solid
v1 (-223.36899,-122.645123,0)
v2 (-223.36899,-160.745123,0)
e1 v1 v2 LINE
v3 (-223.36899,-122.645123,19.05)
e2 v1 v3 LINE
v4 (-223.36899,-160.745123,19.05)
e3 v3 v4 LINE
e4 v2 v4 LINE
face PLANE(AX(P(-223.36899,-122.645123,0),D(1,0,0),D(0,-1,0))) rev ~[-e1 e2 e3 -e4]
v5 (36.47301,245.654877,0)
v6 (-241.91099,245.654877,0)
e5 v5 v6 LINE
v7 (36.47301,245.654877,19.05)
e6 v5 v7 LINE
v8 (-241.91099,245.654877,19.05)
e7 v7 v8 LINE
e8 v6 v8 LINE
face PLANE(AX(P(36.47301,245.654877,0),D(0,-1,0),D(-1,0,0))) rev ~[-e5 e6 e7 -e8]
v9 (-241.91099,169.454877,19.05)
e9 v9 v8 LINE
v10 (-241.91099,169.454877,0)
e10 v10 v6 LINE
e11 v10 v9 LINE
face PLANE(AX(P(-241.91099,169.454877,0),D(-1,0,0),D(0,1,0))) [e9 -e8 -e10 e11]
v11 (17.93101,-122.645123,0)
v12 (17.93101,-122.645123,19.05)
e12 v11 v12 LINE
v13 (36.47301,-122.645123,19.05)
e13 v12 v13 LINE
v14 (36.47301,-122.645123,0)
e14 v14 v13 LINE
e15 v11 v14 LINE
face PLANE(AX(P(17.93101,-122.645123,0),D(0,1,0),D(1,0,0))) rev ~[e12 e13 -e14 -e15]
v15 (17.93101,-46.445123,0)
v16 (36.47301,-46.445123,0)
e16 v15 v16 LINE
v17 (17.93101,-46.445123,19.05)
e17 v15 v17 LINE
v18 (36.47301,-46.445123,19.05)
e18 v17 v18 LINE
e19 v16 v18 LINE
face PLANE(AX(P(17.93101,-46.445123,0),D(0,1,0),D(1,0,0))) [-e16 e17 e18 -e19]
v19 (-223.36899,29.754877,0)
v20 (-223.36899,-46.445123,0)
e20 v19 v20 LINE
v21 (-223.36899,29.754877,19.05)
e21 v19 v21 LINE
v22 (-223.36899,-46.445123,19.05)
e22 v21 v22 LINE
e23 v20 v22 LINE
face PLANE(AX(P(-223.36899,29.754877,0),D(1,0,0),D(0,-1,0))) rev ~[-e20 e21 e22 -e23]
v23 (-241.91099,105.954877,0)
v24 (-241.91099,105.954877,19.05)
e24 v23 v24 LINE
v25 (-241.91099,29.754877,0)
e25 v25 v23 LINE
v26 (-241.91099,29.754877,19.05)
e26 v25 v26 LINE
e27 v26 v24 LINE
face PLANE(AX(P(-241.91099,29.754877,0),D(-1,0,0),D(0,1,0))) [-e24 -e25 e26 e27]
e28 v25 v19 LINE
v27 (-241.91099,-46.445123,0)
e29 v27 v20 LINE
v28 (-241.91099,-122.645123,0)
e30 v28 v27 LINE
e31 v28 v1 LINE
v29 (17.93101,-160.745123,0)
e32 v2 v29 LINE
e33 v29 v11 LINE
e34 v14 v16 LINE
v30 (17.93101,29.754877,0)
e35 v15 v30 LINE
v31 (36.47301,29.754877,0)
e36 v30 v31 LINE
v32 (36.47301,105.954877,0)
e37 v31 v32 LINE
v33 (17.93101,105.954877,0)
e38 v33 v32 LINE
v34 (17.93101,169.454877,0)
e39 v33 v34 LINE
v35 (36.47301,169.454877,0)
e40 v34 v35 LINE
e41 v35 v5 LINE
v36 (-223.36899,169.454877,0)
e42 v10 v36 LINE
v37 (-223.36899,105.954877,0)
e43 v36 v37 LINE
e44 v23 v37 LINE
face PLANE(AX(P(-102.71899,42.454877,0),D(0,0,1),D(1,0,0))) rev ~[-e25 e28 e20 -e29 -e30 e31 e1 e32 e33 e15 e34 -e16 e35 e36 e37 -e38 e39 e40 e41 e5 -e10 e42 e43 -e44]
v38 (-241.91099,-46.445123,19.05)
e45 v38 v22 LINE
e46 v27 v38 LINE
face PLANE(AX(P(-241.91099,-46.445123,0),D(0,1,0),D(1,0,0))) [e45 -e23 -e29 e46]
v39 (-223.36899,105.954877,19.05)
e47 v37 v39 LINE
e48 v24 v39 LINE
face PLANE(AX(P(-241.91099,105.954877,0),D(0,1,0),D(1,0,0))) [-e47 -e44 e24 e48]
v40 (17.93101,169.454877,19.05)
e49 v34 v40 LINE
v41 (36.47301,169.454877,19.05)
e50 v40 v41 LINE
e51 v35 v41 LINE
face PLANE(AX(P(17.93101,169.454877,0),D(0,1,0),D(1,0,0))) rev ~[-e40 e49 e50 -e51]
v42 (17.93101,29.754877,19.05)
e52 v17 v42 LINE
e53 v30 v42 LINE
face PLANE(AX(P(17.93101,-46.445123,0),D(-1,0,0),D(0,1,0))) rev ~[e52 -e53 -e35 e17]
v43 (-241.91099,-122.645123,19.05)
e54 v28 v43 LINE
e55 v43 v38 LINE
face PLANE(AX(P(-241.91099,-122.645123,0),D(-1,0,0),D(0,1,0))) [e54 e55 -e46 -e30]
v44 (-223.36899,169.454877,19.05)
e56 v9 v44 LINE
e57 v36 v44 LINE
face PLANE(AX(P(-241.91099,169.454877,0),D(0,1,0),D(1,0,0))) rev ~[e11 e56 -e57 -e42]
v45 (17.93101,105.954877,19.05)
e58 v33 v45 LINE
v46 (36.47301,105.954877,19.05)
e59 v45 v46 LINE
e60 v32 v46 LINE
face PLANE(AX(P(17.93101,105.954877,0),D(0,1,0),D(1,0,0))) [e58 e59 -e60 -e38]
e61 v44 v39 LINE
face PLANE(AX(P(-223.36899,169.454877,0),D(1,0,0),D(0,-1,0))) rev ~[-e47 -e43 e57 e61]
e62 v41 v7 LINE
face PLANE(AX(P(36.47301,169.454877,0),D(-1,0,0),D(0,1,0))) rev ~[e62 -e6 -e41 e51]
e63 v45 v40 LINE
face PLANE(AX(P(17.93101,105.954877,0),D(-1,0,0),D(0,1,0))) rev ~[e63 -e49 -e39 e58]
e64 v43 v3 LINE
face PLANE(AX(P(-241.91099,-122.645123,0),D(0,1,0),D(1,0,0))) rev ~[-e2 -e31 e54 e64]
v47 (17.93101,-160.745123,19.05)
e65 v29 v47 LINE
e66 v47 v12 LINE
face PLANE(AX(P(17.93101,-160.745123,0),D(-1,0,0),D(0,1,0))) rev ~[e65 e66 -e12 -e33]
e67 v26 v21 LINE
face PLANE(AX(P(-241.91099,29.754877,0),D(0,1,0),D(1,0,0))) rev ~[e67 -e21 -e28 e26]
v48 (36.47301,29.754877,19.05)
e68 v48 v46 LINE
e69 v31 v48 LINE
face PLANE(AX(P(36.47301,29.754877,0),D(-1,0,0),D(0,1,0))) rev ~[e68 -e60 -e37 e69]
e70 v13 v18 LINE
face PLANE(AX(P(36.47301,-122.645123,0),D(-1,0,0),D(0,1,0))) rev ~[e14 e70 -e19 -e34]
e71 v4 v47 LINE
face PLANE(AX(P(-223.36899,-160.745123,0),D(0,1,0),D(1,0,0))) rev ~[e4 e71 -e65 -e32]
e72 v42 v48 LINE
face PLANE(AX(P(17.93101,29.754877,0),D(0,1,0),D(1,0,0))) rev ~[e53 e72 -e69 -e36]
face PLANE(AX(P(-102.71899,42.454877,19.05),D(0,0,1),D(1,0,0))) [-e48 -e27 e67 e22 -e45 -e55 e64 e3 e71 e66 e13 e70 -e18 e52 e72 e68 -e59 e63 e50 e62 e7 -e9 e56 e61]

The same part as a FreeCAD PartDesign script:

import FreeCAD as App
import Part
import Sketcher

V = App.Vector
Q = App.Units.Quantity


def add_polygon(sketch, points):
    """Adds a closed chain of lines whose ends are joined by coincident constraints."""
    first, n = sketch.GeometryCount, len(points)
    for a, b in zip(points, points[1:] + points[:1]):
        sketch.addGeometry(Part.LineSegment(App.Vector(*a, 0), App.Vector(*b, 0)), False)
    for i in range(n):
        sketch.addConstraint(Sketcher.Constraint("Coincident", first + i, 2, first + (i + 1) % n, 1))

doc = App.newDocument("Part")
params = doc.addObject("Spreadsheet::Sheet", "Params")
for row, (alias, value) in enumerate([
    ("sketch1_height", "3 in"),
    ("sketch1_width", "9.5 in"),
    ("sketch1_height2", "2.5 in"),
    ("sketch1_height3", "1.5 in"),
    ("sketch1_width2", "0.73 in"),
    ("pad1_length", "0.75 in"),
], start=1):
    params.set(f"A{row}", alias)
    params.set(f"B{row}", "=" + value)
    params.setAlias(f"B{row}", alias)

body = doc.addObject("PartDesign::Body", "Body")

# Sketch on XY plane
sketch1 = body.newObject("Sketcher::SketchObject", "Sketch")
sketch1.AttachmentSupport = (doc.getObject("XY_Plane"), [""])
sketch1.MapMode = "FlatFace"
add_polygon(sketch1, [(-223.36899, 169.454877), (-223.36899, 105.954877), (-241.91099, 105.954877), (-241.91099, 29.754877), (-223.36899, 29.754877), (-223.36899, -46.445123), (-241.91099, -46.445123), (-241.91099, -122.645123), (-223.36899, -122.645123), (-223.36899, -160.745123), (17.93101, -160.745123), (17.93101, -122.645123), (36.47301, -122.645123), (36.47301, -46.445123), (17.93101, -46.445123), (17.93101, 29.754877), (36.47301, 29.754877), (36.47301, 105.954877), (17.93101, 105.954877), (17.93101, 169.454877), (36.47301, 169.454877), (36.47301, 245.654877), (-241.91099, 245.654877), (-241.91099, 169.454877)])  # lines 0-23
sketch1.addConstraint([
    Sketcher.Constraint("Vertical", 0),
    Sketcher.Constraint("Horizontal", 1),
    Sketcher.Constraint("Vertical", 2),
    Sketcher.Constraint("Horizontal", 3),
    Sketcher.Constraint("Vertical", 4),
    Sketcher.Constraint("Horizontal", 5),
    Sketcher.Constraint("Vertical", 6),
    Sketcher.Constraint("Horizontal", 7),
    Sketcher.Constraint("Vertical", 8),
    Sketcher.Constraint("Horizontal", 9),
    Sketcher.Constraint("Vertical", 10),
    Sketcher.Constraint("Horizontal", 11),
    Sketcher.Constraint("Vertical", 12),
    Sketcher.Constraint("Horizontal", 13),
    Sketcher.Constraint("Vertical", 14),
    Sketcher.Constraint("Horizontal", 15),
    Sketcher.Constraint("Vertical", 16),
    Sketcher.Constraint("Horizontal", 17),
    Sketcher.Constraint("Vertical", 18),
    Sketcher.Constraint("Horizontal", 19),
    Sketcher.Constraint("Vertical", 20),
    Sketcher.Constraint("Horizontal", 21),
    Sketcher.Constraint("Vertical", 22),
    Sketcher.Constraint("Horizontal", 23),
    Sketcher.Constraint("Horizontal", 7, 2, 10, 2),
    Sketcher.Constraint("Horizontal", 5, 2, 12, 2),
    Sketcher.Constraint("Horizontal", 3, 2, 14, 2),
    Sketcher.Constraint("Horizontal", 1, 2, 16, 2),
    Sketcher.Constraint("Horizontal", 19, 2, 22, 2),
    Sketcher.Constraint("Vertical", 0, 2, 3, 2),
    Sketcher.Constraint("Vertical", 2, 2, 5, 2),
    Sketcher.Constraint("Vertical", 4, 2, 7, 2),
    Sketcher.Constraint("Vertical", 10, 2, 13, 2),
    Sketcher.Constraint("Vertical", 12, 2, 15, 2),
    Sketcher.Constraint("Vertical", 14, 2, 17, 2),
    Sketcher.Constraint("Vertical", 16, 2, 19, 2),
    Sketcher.Constraint("Vertical", 6, 2, 21, 2),
    Sketcher.Constraint("Equal", 7, 11),
    Sketcher.Constraint("Equal", 2, 4),
    Sketcher.Constraint("Equal", 4, 6),
    Sketcher.Constraint("Equal", 16, 20),
    Sketcher.Constraint("DistanceY", 2, 2, 2, 1, Q("3 in")),
    Sketcher.Constraint("DistanceX", 9, 1, 9, 2, Q("9.5 in")),
    Sketcher.Constraint("DistanceY", 0, 2, 0, 1, Q("2.5 in")),
    Sketcher.Constraint("DistanceY", 8, 2, 8, 1, Q("1.5 in")),
    Sketcher.Constraint("DistanceX", 1, 2, 1, 1, Q("0.73 in")),
    Sketcher.Constraint("DistanceX", 0, 2, -1, 1, 223.36899),
    Sketcher.Constraint("DistanceY", -1, 1, 0, 2, 105.954877),
])
sketch1.setExpression("Constraints[65]", "Params.sketch1_height")
sketch1.setExpression("Constraints[66]", "Params.sketch1_width")
sketch1.setExpression("Constraints[67]", "Params.sketch1_height2")
sketch1.setExpression("Constraints[68]", "Params.sketch1_height3")
sketch1.setExpression("Constraints[69]", "Params.sketch1_width2")
pad1 = body.newObject("PartDesign::Pad", "Pad")
pad1.Profile = sketch1
pad1.setExpression("Length", "Params.pad1_length")

doc.recompute()
